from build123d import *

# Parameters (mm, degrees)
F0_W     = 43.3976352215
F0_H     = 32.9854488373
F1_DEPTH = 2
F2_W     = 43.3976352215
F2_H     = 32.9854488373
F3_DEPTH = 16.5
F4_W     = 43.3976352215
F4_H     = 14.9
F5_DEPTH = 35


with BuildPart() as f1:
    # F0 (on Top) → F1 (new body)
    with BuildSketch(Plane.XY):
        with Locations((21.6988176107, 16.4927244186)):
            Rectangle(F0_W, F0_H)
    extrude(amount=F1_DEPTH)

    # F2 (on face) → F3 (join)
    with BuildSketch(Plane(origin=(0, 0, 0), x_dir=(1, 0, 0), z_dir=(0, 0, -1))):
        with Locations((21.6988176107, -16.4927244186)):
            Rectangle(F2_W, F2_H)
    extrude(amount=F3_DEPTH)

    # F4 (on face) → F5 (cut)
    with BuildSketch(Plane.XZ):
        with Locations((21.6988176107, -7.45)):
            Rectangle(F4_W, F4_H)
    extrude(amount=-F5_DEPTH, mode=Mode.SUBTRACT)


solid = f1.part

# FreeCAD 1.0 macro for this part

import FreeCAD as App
import Part
import Sketcher
from FreeCAD import Vector
Q = App.Units.Quantity

doc = App.newDocument("Part")
body = doc.addObject("PartDesign::Body", "Body")
body.AllowCompound = True

# Sketch on XY plane
sketch1 = doc.addObject("Sketcher::SketchObject", "Sketch")
body.addObject(sketch1)
sketch1.AttachmentSupport = (doc.XY_Plane, [""])
sketch1.MapMode = "FlatFace"
sketch1.addGeometry(Part.LineSegment(Vector(0, 33, 0), Vector(0, 0, 0)), False)
sketch1.addGeometry(Part.LineSegment(Vector(0, 0, 0), Vector(43, 0, 0)), False)
sketch1.addGeometry(Part.LineSegment(Vector(43, 0, 0), Vector(43, 33, 0)), False)
sketch1.addGeometry(Part.LineSegment(Vector(43, 33, 0), Vector(0, 33, 0)), False)
sketch1.addConstraint(Sketcher.Constraint("Coincident", 0, 2, 1, 1))
sketch1.addConstraint(Sketcher.Constraint("Coincident", 1, 2, 2, 1))
sketch1.addConstraint(Sketcher.Constraint("Coincident", 2, 2, 3, 1))
sketch1.addConstraint(Sketcher.Constraint("Coincident", 3, 2, 0, 1))
sketch1.addConstraint(Sketcher.Constraint("Vertical", 0))
sketch1.addConstraint(Sketcher.Constraint("Horizontal", 1))
sketch1.addConstraint(Sketcher.Constraint("Vertical", 2))
sketch1.addConstraint(Sketcher.Constraint("Horizontal", 3))
sketch1.addConstraint(Sketcher.Constraint("Coincident", 0, 2, -1, 1))
sketch1.addConstraint(Sketcher.Constraint("DistanceY", 0, 2, 0, 1, Q("32.985449 mm")))
sketch1.addConstraint(Sketcher.Constraint("DistanceX", 1, 1, 1, 2, Q("43.397635 mm")))
pad1 = doc.addObject("PartDesign::Pad", "Pad")
body.addObject(pad1)
pad1.Profile = sketch1
pad1.Length = 2

# Sketch on XY plane
sketch2 = doc.addObject("Sketcher::SketchObject", "Sketch001")
body.addObject(sketch2)
sketch2.AttachmentSupport = (doc.XY_Plane, [""])
sketch2.MapMode = "FlatFace"
sketch2.addGeometry(Part.LineSegment(Vector(0, 0, 0), Vector(0, 33, 0)), False)
sketch2.addGeometry(Part.LineSegment(Vector(0, 33, 0), Vector(43, 33, 0)), False)
sketch2.addGeometry(Part.LineSegment(Vector(43, 33, 0), Vector(43, 0, 0)), False)
sketch2.addGeometry(Part.LineSegment(Vector(43, 0, 0), Vector(0, 0, 0)), False)
sketch2.addConstraint(Sketcher.Constraint("Coincident", 0, 2, 1, 1))
sketch2.addConstraint(Sketcher.Constraint("Coincident", 1, 2, 2, 1))
sketch2.addConstraint(Sketcher.Constraint("Coincident", 2, 2, 3, 1))
sketch2.addConstraint(Sketcher.Constraint("Coincident", 3, 2, 0, 1))
sketch2.addConstraint(Sketcher.Constraint("Vertical", 0))
sketch2.addConstraint(Sketcher.Constraint("Horizontal", 1))
sketch2.addConstraint(Sketcher.Constraint("Vertical", 2))
sketch2.addConstraint(Sketcher.Constraint("Horizontal", 3))
sketch2.addConstraint(Sketcher.Constraint("Coincident", 3, 2, -1, 1))
sketch2.addConstraint(Sketcher.Constraint("DistanceY", 0, 1, 0, 2, Q("32.985449 mm")))
sketch2.addConstraint(Sketcher.Constraint("DistanceX", 1, 1, 1, 2, Q("43.397635 mm")))
pad2 = doc.addObject("PartDesign::Pad", "Pad001")
body.addObject(pad2)
pad2.Profile = sketch2
pad2.Length = 16.5
pad2.Reversed = True

# Sketch on XZ plane
sketch3 = doc.addObject("Sketcher::SketchObject", "Sketch002")
body.addObject(sketch3)
sketch3.AttachmentSupport = (doc.XZ_Plane, [""])
sketch3.MapMode = "FlatFace"
sketch3.addGeometry(Part.LineSegment(Vector(0, 0, 0), Vector(0, -15, 0)), False)
sketch3.addGeometry(Part.LineSegment(Vector(0, -15, 0), Vector(43, -15, 0)), False)
sketch3.addGeometry(Part.LineSegment(Vector(43, -15, 0), Vector(43, 0, 0)), False)
sketch3.addGeometry(Part.LineSegment(Vector(43, 0, 0), Vector(0, 0, 0)), False)
sketch3.addConstraint(Sketcher.Constraint("Coincident", 0, 2, 1, 1))
sketch3.addConstraint(Sketcher.Constraint("Coincident", 1, 2, 2, 1))
sketch3.addConstraint(Sketcher.Constraint("Coincident", 2, 2, 3, 1))
sketch3.addConstraint(Sketcher.Constraint("Coincident", 3, 2, 0, 1))
sketch3.addConstraint(Sketcher.Constraint("Vertical", 0))
sketch3.addConstraint(Sketcher.Constraint("Horizontal", 1))
sketch3.addConstraint(Sketcher.Constraint("Vertical", 2))
sketch3.addConstraint(Sketcher.Constraint("Horizontal", 3))
sketch3.addConstraint(Sketcher.Constraint("Coincident", 3, 2, -1, 1))
sketch3.addConstraint(Sketcher.Constraint("DistanceY", 0, 2, 0, 1, Q("14.9 mm")))
sketch3.addConstraint(Sketcher.Constraint("DistanceX", 1, 1, 1, 2, Q("43.397635 mm")))
pocket1 = doc.addObject("PartDesign::Pocket", "Pocket")
body.addObject(pocket1)
pocket1.Profile = sketch3
pocket1.Length = 35

doc.recompute()
